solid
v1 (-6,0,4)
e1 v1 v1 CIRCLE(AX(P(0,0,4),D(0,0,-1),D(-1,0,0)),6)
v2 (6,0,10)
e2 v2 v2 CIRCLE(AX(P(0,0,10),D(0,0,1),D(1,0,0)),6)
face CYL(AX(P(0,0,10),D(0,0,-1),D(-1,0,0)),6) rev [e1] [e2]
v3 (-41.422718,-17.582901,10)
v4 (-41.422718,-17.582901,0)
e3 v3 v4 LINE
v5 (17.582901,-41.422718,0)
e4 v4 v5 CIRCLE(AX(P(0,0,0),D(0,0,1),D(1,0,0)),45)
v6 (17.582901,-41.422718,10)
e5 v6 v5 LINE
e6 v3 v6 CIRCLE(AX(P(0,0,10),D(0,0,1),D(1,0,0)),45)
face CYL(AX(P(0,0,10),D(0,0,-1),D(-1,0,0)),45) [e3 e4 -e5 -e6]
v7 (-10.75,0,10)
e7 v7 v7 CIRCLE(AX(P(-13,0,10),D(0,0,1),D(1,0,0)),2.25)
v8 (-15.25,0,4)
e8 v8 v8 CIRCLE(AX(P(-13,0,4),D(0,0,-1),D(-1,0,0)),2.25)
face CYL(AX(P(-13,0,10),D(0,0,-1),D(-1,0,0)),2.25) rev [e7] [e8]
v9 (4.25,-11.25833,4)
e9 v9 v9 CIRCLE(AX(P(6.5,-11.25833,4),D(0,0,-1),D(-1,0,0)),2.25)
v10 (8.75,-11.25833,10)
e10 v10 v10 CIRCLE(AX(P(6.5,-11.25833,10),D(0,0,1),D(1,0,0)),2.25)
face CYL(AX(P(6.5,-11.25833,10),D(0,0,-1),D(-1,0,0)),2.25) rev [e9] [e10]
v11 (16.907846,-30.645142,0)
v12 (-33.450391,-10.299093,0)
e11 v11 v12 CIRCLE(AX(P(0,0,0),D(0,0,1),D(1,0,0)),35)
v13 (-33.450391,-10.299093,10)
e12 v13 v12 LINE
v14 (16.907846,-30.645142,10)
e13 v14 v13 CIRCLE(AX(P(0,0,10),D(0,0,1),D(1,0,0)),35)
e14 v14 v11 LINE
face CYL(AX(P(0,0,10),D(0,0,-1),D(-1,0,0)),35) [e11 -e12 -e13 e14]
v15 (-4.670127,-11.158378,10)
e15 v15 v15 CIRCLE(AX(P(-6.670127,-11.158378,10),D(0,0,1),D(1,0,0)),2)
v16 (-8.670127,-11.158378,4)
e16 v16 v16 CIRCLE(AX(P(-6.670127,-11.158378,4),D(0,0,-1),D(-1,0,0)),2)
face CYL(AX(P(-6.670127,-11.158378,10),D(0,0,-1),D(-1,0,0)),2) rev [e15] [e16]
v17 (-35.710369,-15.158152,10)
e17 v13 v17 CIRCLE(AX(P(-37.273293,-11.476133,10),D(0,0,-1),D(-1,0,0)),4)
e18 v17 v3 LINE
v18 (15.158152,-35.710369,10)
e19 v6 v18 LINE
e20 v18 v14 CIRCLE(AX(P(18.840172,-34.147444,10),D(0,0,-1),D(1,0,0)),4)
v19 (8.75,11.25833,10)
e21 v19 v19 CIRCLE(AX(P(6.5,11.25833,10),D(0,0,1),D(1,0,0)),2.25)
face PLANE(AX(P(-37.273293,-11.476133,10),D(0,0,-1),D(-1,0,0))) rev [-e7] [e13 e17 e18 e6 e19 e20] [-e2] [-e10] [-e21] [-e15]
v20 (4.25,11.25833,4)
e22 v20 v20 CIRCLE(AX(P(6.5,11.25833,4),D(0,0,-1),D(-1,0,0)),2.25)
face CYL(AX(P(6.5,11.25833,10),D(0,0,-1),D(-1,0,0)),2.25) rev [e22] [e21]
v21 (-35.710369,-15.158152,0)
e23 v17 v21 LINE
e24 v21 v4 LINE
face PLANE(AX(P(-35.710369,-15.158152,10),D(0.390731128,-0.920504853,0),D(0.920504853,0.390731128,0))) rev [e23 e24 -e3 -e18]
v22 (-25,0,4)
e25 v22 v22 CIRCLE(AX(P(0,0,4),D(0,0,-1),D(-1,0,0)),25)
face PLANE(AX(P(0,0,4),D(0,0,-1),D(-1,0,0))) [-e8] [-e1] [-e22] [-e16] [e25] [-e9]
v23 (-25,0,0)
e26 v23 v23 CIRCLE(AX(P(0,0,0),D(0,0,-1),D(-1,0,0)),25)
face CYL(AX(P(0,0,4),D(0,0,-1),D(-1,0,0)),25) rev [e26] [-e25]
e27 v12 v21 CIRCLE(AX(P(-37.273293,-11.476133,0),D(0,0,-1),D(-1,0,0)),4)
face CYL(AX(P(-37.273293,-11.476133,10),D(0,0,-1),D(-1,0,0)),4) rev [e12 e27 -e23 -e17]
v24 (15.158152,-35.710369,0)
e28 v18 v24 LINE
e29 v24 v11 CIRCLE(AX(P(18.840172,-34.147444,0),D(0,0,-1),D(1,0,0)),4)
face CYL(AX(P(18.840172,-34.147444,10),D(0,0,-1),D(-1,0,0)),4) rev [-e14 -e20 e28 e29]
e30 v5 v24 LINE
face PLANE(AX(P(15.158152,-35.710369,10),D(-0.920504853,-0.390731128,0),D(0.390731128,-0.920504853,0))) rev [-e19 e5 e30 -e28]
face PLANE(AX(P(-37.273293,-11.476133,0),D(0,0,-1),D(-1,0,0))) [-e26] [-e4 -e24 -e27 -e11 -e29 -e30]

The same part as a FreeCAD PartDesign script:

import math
import FreeCAD as App
import Part
import Sketcher

V = App.Vector
Q = App.Units.Quantity

doc = App.newDocument("Part")
body = doc.addObject("PartDesign::Body", "Body")

sketch1 = body.newObject("Sketcher::SketchObject", "Sketch")
sketch1.AttachmentSupport = (doc.getObject("XY_Plane"), [""])
sketch1.MapMode = "FlatFace"
sketch1.addGeometry(Part.LineSegment(V(17.6, -41.4, 0), V(15.2, -35.7, 0)), False)
sketch1.addGeometry(Part.ArcOfCircle(Part.Circle(V(18.8, -34.1, 0), V(0, 0, 1), 4), math.radians(119), math.radians(203)), False)
sketch1.addGeometry(Part.ArcOfCircle(Part.Circle(V(0, 0, 0), V(0, 0, 1), 35), math.radians(-61), math.radians(197)), False)
sketch1.addGeometry(Part.ArcOfCircle(Part.Circle(V(-37.3, -11.5, 0), V(0, 0, 1), 4), math.radians(-67), math.radians(17)), False)
sketch1.addGeometry(Part.LineSegment(V(-35.7, -15.2, 0), V(-41.4, -17.6, 0)), False)
sketch1.addGeometry(Part.ArcOfCircle(Part.Circle(V(0, 0, 0), V(0, 0, 1), 45), math.radians(-157), math.radians(-67)), False)
sketch1.addGeometry(Part.Circle(V(6.5, -11.3, 0), V(0, 0, 1), 2.2), False)
sketch1.addGeometry(Part.Circle(V(0, 0, 0), V(0, 0, 1), 6), False)
sketch1.addGeometry(Part.Circle(V(-6.7, -11.2, 0), V(0, 0, 1), 2), False)
sketch1.addGeometry(Part.Circle(V(-13, 0, 0), V(0, 0, 1), 2.2), False)
sketch1.addGeometry(Part.Circle(V(6.5, 11.3, 0), V(0, 0, 1), 2.2), False)
sketch1.addConstraint(Sketcher.Constraint("Tangent", 0, 2, 1, 2))
sketch1.addConstraint(Sketcher.Constraint("Tangent", 1, 1, 2, 1))
sketch1.addConstraint(Sketcher.Constraint("Tangent", 2, 2, 3, 2))
sketch1.addConstraint(Sketcher.Constraint("Tangent", 3, 1, 4, 1))
sketch1.addConstraint(Sketcher.Constraint("Coincident", 4, 2, 5, 1))
sketch1.addConstraint(Sketcher.Constraint("Coincident", 5, 2, 0, 1))
sketch1.addConstraint(Sketcher.Constraint("Coincident", 2, 3, -1, 1))
sketch1.addConstraint(Sketcher.Constraint("Coincident", 5, 3, -1, 1))
sketch1.addConstraint(Sketcher.Constraint("Coincident", 7, 3, -1, 1))
sketch1.addConstraint(Sketcher.Constraint("Equal", 1, 3))
sketch1.addConstraint(Sketcher.Constraint("Equal", 6, 9))
sketch1.addConstraint(Sketcher.Constraint("Equal", 9, 10))
sketch1.addConstraint(Sketcher.Constraint("Symmetric", 6, 3, 10, 3, -1))
sketch1.addConstraint(Sketcher.Constraint("PointOnObject", 9, 3, -1))
sketch1.addConstraint(Sketcher.Constraint("Perpendicular", 0, 4))
sketch1.addConstraint(Sketcher.Constraint("Equal", 0, 4))
sketch1.addConstraint(Sketcher.Constraint("Diameter", 7, 12.0))
sketch1.addConstraint(Sketcher.Constraint("Diameter", 8, 4.0))
sketch1.addConstraint(Sketcher.Constraint("Radius", 1, 4.0))
sketch1.addConstraint(Sketcher.Constraint("Radius", 2, 35.0))
sketch1.addConstraint(Sketcher.Constraint("Radius", 5, 45.0))
sketch1.addConstraint(Sketcher.Constraint("Diameter", 6, 4.5))
sketch1.addConstraint(Sketcher.Constraint("Angle", 0, Q("113 deg")))
sketch1.addConstraint(Sketcher.Constraint("DistanceX", 9, 3, -1, 1, 13.0))
sketch1.addConstraint(Sketcher.Constraint("DistanceX", -1, 1, 6, 3, 6.5))
sketch1.addConstraint(Sketcher.Constraint("DistanceY", 4, 2, -1, 1, 17.582901))
sketch1.addConstraint(Sketcher.Constraint("DistanceY", 6, 3, -1, 1, 11.25833))
sketch1.addConstraint(Sketcher.Constraint("DistanceY", 8, 3, -1, 1, 11.158378))
sketch1.addConstraint(Sketcher.Constraint("DistanceX", 8, 3, 0, 2, 21.828279))
pad1 = body.newObject("PartDesign::Pad", "Pad")
pad1.Profile = sketch1
pad1.Length = 10

sketch2 = body.newObject("Sketcher::SketchObject", "Sketch001")
sketch2.AttachmentSupport = (doc.getObject("XY_Plane"), [""])
sketch2.MapMode = "FlatFace"
sketch2.addGeometry(Part.Circle(V(0, 0, 0), V(0, 0, 1), 25), False)
sketch2.addConstraint(Sketcher.Constraint("Coincident", 0, 3, -1, 1))
sketch2.addConstraint(Sketcher.Constraint("Diameter", 0, 50.0))
pocket1 = body.newObject("PartDesign::Pocket", "Pocket")
pocket1.Profile = sketch2
pocket1.Length = 4
pocket1.Reversed = True

doc.recompute()
